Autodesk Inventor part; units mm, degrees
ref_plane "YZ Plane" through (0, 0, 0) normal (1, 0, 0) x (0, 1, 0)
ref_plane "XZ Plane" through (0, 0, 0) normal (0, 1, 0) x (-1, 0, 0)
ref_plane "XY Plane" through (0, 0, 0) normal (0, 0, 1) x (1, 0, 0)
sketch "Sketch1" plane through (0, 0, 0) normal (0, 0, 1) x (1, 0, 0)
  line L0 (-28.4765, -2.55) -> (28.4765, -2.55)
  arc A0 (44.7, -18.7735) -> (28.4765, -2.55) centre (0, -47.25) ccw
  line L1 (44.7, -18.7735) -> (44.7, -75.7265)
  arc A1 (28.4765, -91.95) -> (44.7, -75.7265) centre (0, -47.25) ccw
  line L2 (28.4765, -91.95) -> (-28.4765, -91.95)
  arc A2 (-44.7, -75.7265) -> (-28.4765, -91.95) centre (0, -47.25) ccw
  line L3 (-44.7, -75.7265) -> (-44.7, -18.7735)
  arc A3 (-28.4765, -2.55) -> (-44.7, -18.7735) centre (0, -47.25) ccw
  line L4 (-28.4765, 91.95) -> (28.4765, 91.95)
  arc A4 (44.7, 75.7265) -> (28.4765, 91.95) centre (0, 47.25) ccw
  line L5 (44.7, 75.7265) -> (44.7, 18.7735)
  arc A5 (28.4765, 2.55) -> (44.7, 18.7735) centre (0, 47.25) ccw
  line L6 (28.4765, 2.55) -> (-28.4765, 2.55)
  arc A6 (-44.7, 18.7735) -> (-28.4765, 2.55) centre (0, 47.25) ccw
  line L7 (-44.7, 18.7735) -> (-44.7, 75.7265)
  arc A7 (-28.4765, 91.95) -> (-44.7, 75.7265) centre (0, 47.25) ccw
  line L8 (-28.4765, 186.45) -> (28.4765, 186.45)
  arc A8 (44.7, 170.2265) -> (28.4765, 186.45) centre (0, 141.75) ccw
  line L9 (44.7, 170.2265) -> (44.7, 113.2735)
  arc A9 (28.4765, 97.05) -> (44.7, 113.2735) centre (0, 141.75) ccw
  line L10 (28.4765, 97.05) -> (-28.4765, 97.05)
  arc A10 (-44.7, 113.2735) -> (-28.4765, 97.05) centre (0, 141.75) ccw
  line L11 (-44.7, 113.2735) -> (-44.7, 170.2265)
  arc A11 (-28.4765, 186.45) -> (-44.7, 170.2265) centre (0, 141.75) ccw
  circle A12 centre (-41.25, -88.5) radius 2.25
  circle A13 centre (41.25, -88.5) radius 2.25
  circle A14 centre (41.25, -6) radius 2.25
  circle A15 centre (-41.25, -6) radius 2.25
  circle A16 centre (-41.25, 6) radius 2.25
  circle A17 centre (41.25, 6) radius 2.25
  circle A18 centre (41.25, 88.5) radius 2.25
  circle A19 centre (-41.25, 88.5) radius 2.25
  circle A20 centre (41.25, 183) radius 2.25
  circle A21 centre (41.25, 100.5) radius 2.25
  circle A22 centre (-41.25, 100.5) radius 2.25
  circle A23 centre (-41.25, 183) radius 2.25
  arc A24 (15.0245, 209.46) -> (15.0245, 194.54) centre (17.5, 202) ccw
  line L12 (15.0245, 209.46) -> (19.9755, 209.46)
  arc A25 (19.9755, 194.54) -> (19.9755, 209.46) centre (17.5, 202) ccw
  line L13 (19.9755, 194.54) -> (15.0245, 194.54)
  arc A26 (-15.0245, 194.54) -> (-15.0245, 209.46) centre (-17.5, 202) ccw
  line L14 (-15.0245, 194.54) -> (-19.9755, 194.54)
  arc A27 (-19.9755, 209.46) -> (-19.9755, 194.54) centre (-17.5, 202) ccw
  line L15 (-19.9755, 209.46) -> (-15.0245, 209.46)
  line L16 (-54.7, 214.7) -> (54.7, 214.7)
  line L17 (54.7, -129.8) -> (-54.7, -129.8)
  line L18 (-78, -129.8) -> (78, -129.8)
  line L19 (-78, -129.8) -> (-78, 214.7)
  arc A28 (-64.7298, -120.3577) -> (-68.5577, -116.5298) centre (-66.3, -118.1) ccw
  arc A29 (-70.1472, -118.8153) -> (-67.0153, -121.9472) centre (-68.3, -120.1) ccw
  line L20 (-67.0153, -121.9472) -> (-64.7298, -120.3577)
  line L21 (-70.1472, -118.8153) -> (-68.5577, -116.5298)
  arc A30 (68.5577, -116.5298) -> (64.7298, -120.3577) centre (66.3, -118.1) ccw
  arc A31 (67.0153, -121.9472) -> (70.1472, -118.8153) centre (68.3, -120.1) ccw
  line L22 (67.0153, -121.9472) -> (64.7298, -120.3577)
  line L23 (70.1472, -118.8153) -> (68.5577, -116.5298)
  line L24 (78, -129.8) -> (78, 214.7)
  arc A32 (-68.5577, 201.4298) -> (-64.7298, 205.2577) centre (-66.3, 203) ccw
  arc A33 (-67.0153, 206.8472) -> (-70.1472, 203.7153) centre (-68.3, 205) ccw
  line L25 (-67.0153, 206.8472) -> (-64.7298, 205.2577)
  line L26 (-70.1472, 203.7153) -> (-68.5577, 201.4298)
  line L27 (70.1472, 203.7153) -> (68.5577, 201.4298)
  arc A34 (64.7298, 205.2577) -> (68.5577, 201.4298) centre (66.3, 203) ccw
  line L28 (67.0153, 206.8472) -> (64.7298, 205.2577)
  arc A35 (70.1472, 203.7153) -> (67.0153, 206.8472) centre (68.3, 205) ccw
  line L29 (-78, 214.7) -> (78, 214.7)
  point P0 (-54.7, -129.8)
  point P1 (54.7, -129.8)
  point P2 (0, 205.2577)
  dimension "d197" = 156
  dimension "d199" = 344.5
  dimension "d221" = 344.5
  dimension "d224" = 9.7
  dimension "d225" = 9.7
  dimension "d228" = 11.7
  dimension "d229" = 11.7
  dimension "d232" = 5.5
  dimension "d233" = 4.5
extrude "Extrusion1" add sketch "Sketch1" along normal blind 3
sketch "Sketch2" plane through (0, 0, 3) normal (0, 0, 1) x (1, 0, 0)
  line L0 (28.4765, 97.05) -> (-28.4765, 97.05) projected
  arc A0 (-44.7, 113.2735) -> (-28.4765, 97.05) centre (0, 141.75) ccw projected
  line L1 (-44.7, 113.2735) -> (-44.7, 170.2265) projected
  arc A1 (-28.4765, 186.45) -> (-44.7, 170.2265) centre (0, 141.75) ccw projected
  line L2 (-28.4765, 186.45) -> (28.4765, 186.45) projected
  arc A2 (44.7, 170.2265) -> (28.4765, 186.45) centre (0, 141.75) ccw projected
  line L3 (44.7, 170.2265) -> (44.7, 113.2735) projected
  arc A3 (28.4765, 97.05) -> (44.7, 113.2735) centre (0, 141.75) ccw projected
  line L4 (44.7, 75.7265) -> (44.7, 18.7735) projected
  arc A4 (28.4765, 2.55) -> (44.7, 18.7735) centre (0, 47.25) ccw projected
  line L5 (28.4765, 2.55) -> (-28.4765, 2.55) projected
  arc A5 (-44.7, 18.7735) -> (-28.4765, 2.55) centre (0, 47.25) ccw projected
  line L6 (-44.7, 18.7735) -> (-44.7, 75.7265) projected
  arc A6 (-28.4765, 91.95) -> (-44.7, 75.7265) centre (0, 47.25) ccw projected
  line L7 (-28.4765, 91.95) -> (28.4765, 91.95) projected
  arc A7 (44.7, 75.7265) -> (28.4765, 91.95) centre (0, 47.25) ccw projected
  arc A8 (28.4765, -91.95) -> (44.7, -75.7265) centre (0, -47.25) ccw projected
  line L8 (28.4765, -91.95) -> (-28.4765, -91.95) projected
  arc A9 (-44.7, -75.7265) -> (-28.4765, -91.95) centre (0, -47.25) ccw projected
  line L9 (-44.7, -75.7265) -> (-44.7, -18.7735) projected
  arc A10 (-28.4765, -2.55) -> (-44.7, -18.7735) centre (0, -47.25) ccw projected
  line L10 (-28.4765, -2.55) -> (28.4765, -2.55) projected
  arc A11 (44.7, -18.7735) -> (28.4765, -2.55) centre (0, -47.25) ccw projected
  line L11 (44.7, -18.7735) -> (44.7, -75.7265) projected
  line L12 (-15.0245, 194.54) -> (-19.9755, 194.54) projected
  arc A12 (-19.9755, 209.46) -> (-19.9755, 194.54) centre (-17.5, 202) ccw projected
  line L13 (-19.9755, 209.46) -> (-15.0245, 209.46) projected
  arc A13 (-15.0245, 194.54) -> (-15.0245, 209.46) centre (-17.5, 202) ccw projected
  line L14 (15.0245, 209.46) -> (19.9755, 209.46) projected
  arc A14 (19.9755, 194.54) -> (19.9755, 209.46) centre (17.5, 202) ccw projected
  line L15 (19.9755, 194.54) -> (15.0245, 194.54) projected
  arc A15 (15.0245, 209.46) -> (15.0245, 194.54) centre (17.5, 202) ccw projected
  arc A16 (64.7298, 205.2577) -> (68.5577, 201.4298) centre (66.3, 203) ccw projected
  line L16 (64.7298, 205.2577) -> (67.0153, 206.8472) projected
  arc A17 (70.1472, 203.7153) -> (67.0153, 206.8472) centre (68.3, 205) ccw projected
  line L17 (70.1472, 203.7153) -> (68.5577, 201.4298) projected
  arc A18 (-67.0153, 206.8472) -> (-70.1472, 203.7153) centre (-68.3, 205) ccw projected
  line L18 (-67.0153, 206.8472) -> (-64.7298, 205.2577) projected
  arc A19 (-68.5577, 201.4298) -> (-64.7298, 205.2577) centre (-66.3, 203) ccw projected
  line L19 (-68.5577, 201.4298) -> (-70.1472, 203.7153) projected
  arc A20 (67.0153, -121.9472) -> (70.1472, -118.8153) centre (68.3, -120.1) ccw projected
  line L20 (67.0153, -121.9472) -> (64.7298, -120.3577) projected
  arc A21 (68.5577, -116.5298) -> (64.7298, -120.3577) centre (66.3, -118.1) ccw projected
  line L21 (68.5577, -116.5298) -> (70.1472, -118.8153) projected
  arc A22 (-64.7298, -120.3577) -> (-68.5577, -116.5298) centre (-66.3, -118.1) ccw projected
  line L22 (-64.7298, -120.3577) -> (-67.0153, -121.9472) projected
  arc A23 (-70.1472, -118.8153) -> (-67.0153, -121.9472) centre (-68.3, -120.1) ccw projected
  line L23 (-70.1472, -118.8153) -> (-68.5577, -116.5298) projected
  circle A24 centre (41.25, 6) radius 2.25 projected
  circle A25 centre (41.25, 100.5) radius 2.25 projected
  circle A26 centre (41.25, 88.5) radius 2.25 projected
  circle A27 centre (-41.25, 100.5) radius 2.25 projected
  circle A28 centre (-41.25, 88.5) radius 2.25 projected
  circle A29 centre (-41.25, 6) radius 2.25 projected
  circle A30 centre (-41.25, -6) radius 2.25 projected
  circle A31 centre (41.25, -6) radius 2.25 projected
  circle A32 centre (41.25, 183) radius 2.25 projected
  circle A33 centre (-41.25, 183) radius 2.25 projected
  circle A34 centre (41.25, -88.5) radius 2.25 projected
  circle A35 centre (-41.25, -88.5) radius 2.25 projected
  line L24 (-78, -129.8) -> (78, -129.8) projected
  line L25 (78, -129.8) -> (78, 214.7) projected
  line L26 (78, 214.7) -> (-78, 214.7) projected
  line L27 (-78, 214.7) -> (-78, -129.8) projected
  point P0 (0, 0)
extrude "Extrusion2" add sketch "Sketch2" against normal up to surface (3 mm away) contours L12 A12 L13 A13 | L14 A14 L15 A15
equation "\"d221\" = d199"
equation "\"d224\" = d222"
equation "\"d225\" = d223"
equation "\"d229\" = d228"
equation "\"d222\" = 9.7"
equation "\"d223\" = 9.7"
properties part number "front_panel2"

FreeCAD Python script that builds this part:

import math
import FreeCAD as App
import Part
import Sketcher


def add_polygon(sketch, points):
    """Adds a closed chain of lines whose ends are joined by coincident constraints."""
    first, n = sketch.GeometryCount, len(points)
    for a, b in zip(points, points[1:] + points[:1]):
        sketch.addGeometry(Part.LineSegment(App.Vector(*a, 0), App.Vector(*b, 0)), False)
    for i in range(n):
        sketch.addConstraint(Sketcher.Constraint("Coincident", first + i, 2, first + (i + 1) % n, 1))

doc = App.newDocument("Part")
body = doc.addObject("PartDesign::Body", "Body")

sketch1 = doc.addObject("Sketcher::SketchObject", "Sketch")
body.addObject(sketch1)
sketch1.AttachmentSupport = (doc.XY_Plane, [""])
sketch1.MapMode = "FlatFace"
add_polygon(sketch1, [(78, 214.7), (-78, 214.7), (-78, -129.8), (78, -129.8)])
sketch1.addGeometry(Part.ArcOfCircle(Part.Circle(App.Vector(-66.3, -118.1, 0), App.Vector(0, 0, 1), 2.8), math.radians(-55), math.radians(145)), False)
sketch1.addGeometry(Part.LineSegment(App.Vector(-64.7, -120.4, 0), App.Vector(-67, -121.9, 0)), False)
sketch1.addGeometry(Part.ArcOfCircle(Part.Circle(App.Vector(-68.3, -120.1, 0), App.Vector(0, 0, 1), 2.3), math.radians(145), math.radians(305)), False)
sketch1.addGeometry(Part.LineSegment(App.Vector(-70.1, -118.8, 0), App.Vector(-68.6, -116.5, 0)), False)
sketch1.addGeometry(Part.Circle(App.Vector(-41.2, -88.5, 0), App.Vector(0, 0, 1), 2.2), False)
sketch1.addGeometry(Part.Circle(App.Vector(-41.2, -6, 0), App.Vector(0, 0, 1), 2.2), False)
sketch1.addGeometry(Part.Circle(App.Vector(-41.2, 6, 0), App.Vector(0, 0, 1), 2.2), False)
sketch1.addGeometry(Part.ArcOfCircle(Part.Circle(App.Vector(0, -47.2, 0), App.Vector(0, 0, 1), 53), math.radians(122), math.radians(148)), False)
sketch1.addGeometry(Part.LineSegment(App.Vector(-28.5, -2.5, 0), App.Vector(28.5, -2.5, 0)), False)
sketch1.addGeometry(Part.ArcOfCircle(Part.Circle(App.Vector(0, -47.2, 0), App.Vector(0, 0, 1), 53), math.radians(32), math.radians(58)), False)
sketch1.addGeometry(Part.LineSegment(App.Vector(44.7, -18.8, 0), App.Vector(44.7, -75.7, 0)), False)
sketch1.addGeometry(Part.ArcOfCircle(Part.Circle(App.Vector(0, -47.2, 0), App.Vector(0, 0, 1), 53), math.radians(-58), math.radians(-32)), False)
sketch1.addGeometry(Part.LineSegment(App.Vector(28.5, -92, 0), App.Vector(-28.5, -92, 0)), False)
sketch1.addGeometry(Part.ArcOfCircle(Part.Circle(App.Vector(0, -47.2, 0), App.Vector(0, 0, 1), 53), math.radians(-148), math.radians(-122)), False)
sketch1.addGeometry(Part.LineSegment(App.Vector(-44.7, -75.7, 0), App.Vector(-44.7, -18.8, 0)), False)
sketch1.addGeometry(Part.Circle(App.Vector(41.2, -88.5, 0), App.Vector(0, 0, 1), 2.2), False)
sketch1.addGeometry(Part.ArcOfCircle(Part.Circle(App.Vector(66.3, -118.1, 0), App.Vector(0, 0, 1), 2.8), math.radians(35), math.radians(235)), False)
sketch1.addGeometry(Part.LineSegment(App.Vector(68.6, -116.5, 0), App.Vector(70.1, -118.8, 0)), False)
sketch1.addGeometry(Part.ArcOfCircle(Part.Circle(App.Vector(68.3, -120.1, 0), App.Vector(0, 0, 1), 2.3), math.radians(-125), math.radians(35)), False)
sketch1.addGeometry(Part.LineSegment(App.Vector(67, -121.9, 0), App.Vector(64.7, -120.4, 0)), False)
sketch1.addGeometry(Part.Circle(App.Vector(41.2, -6, 0), App.Vector(0, 0, 1), 2.2), False)
sketch1.addGeometry(Part.Circle(App.Vector(41.2, 6, 0), App.Vector(0, 0, 1), 2.2), False)
sketch1.addGeometry(Part.Circle(App.Vector(-41.2, 88.5, 0), App.Vector(0, 0, 1), 2.2), False)
sketch1.addGeometry(Part.Circle(App.Vector(-41.2, 100.5, 0), App.Vector(0, 0, 1), 2.2), False)
sketch1.addGeometry(Part.ArcOfCircle(Part.Circle(App.Vector(-66.3, 203, 0), App.Vector(0, 0, 1), 2.8), math.radians(-145), math.radians(55)), False)
sketch1.addGeometry(Part.LineSegment(App.Vector(-68.6, 201.4, 0), App.Vector(-70.1, 203.7, 0)), False)
sketch1.addGeometry(Part.ArcOfCircle(Part.Circle(App.Vector(-68.3, 205, 0), App.Vector(0, 0, 1), 2.3), math.radians(55), math.radians(215)), False)
sketch1.addGeometry(Part.LineSegment(App.Vector(-67, 206.8, 0), App.Vector(-64.7, 205.3, 0)), False)
sketch1.addGeometry(Part.Circle(App.Vector(-41.2, 183, 0), App.Vector(0, 0, 1), 2.2), False)
sketch1.addGeometry(Part.ArcOfCircle(Part.Circle(App.Vector(-17.5, 202, 0), App.Vector(0, 0, 1), 7.9), math.radians(-72), math.radians(72)), False)
sketch1.addGeometry(Part.LineSegment(App.Vector(-15, 194.5, 0), App.Vector(-20, 194.5, 0)), False)
sketch1.addGeometry(Part.ArcOfCircle(Part.Circle(App.Vector(-17.5, 202, 0), App.Vector(0, 0, 1), 7.9), math.radians(108), math.radians(252)), False)
sketch1.addGeometry(Part.LineSegment(App.Vector(-20, 209.5, 0), App.Vector(-15, 209.5, 0)), False)
sketch1.addGeometry(Part.ArcOfCircle(Part.Circle(App.Vector(0, 47.2, 0), App.Vector(0, 0, 1), 53), math.radians(122), math.radians(148)), False)
sketch1.addGeometry(Part.LineSegment(App.Vector(-28.5, 92, 0), App.Vector(28.5, 92, 0)), False)
sketch1.addGeometry(Part.ArcOfCircle(Part.Circle(App.Vector(0, 47.2, 0), App.Vector(0, 0, 1), 53), math.radians(32), math.radians(58)), False)
sketch1.addGeometry(Part.LineSegment(App.Vector(44.7, 75.7, 0), App.Vector(44.7, 18.8, 0)), False)
sketch1.addGeometry(Part.ArcOfCircle(Part.Circle(App.Vector(0, 47.2, 0), App.Vector(0, 0, 1), 53), math.radians(-58), math.radians(-32)), False)
sketch1.addGeometry(Part.LineSegment(App.Vector(28.5, 2.5, 0), App.Vector(-28.5, 2.5, 0)), False)
sketch1.addGeometry(Part.ArcOfCircle(Part.Circle(App.Vector(0, 47.2, 0), App.Vector(0, 0, 1), 53), math.radians(-148), math.radians(-122)), False)
sketch1.addGeometry(Part.LineSegment(App.Vector(-44.7, 18.8, 0), App.Vector(-44.7, 75.7, 0)), False)
sketch1.addGeometry(Part.Circle(App.Vector(41.2, 88.5, 0), App.Vector(0, 0, 1), 2.2), False)
sketch1.addGeometry(Part.Circle(App.Vector(41.2, 100.5, 0), App.Vector(0, 0, 1), 2.2), False)
sketch1.addGeometry(Part.ArcOfCircle(Part.Circle(App.Vector(0, 141.8, 0), App.Vector(0, 0, 1), 53), math.radians(122), math.radians(148)), False)
sketch1.addGeometry(Part.LineSegment(App.Vector(-28.5, 186.4, 0), App.Vector(28.5, 186.4, 0)), False)
sketch1.addGeometry(Part.ArcOfCircle(Part.Circle(App.Vector(0, 141.8, 0), App.Vector(0, 0, 1), 53), math.radians(32), math.radians(58)), False)
sketch1.addGeometry(Part.LineSegment(App.Vector(44.7, 170.2, 0), App.Vector(44.7, 113.3, 0)), False)
sketch1.addGeometry(Part.ArcOfCircle(Part.Circle(App.Vector(0, 141.8, 0), App.Vector(0, 0, 1), 53), math.radians(-58), math.radians(-32)), False)
sketch1.addGeometry(Part.LineSegment(App.Vector(28.5, 97, 0), App.Vector(-28.5, 97, 0)), False)
sketch1.addGeometry(Part.ArcOfCircle(Part.Circle(App.Vector(0, 141.8, 0), App.Vector(0, 0, 1), 53), math.radians(-148), math.radians(-122)), False)
sketch1.addGeometry(Part.LineSegment(App.Vector(-44.7, 113.3, 0), App.Vector(-44.7, 170.2, 0)), False)
sketch1.addGeometry(Part.ArcOfCircle(Part.Circle(App.Vector(17.5, 202, 0), App.Vector(0, 0, 1), 7.9), math.radians(108), math.radians(252)), False)
sketch1.addGeometry(Part.LineSegment(App.Vector(15, 209.5, 0), App.Vector(20, 209.5, 0)), False)
sketch1.addGeometry(Part.ArcOfCircle(Part.Circle(App.Vector(17.5, 202, 0), App.Vector(0, 0, 1), 7.9), math.radians(-72), math.radians(72)), False)
sketch1.addGeometry(Part.LineSegment(App.Vector(20, 194.5, 0), App.Vector(15, 194.5, 0)), False)
sketch1.addGeometry(Part.Circle(App.Vector(41.2, 183, 0), App.Vector(0, 0, 1), 2.2), False)
sketch1.addGeometry(Part.ArcOfCircle(Part.Circle(App.Vector(68.3, 205, 0), App.Vector(0, 0, 1), 2.3), math.radians(-35), math.radians(125)), False)
sketch1.addGeometry(Part.LineSegment(App.Vector(70.1, 203.7, 0), App.Vector(68.6, 201.4, 0)), False)
sketch1.addGeometry(Part.ArcOfCircle(Part.Circle(App.Vector(66.3, 203, 0), App.Vector(0, 0, 1), 2.8), math.radians(125), math.radians(325)), False)
sketch1.addGeometry(Part.LineSegment(App.Vector(64.7, 205.3, 0), App.Vector(67, 206.8, 0)), False)
sketch1.addConstraint([
    Sketcher.Constraint("Tangent", 4, 1, 5, 1),
    Sketcher.Constraint("Tangent", 5, 2, 6, 2),
    Sketcher.Constraint("Tangent", 6, 1, 7, 1),
    Sketcher.Constraint("Tangent", 7, 2, 4, 2),
    Sketcher.Constraint("Coincident", 11, 1, 12, 1),
    Sketcher.Constraint("Coincident", 12, 2, 13, 2),
    Sketcher.Constraint("Coincident", 13, 1, 14, 1),
    Sketcher.Constraint("Coincident", 14, 2, 15, 2),
    Sketcher.Constraint("Coincident", 15, 1, 16, 1),
    Sketcher.Constraint("Coincident", 16, 2, 17, 2),
    Sketcher.Constraint("Coincident", 17, 1, 18, 1),
    Sketcher.Constraint("Coincident", 18, 2, 11, 2),
    Sketcher.Constraint("Tangent", 20, 1, 21, 1),
    Sketcher.Constraint("Tangent", 21, 2, 22, 2),
    Sketcher.Constraint("Tangent", 22, 1, 23, 1),
    Sketcher.Constraint("Tangent", 23, 2, 20, 2),
    Sketcher.Constraint("Tangent", 28, 1, 29, 1),
    Sketcher.Constraint("Tangent", 29, 2, 30, 2),
    Sketcher.Constraint("Tangent", 30, 1, 31, 1),
    Sketcher.Constraint("Tangent", 31, 2, 28, 2),
    Sketcher.Constraint("Coincident", 33, 1, 34, 1),
    Sketcher.Constraint("Coincident", 34, 2, 35, 2),
    Sketcher.Constraint("Coincident", 35, 1, 36, 1),
    Sketcher.Constraint("Coincident", 36, 2, 33, 2),
    Sketcher.Constraint("Coincident", 37, 1, 38, 1),
    Sketcher.Constraint("Coincident", 38, 2, 39, 2),
    Sketcher.Constraint("Coincident", 39, 1, 40, 1),
    Sketcher.Constraint("Coincident", 40, 2, 41, 2),
    Sketcher.Constraint("Coincident", 41, 1, 42, 1),
    Sketcher.Constraint("Coincident", 42, 2, 43, 2),
    Sketcher.Constraint("Coincident", 43, 1, 44, 1),
    Sketcher.Constraint("Coincident", 44, 2, 37, 2),
    Sketcher.Constraint("Coincident", 47, 1, 48, 1),
    Sketcher.Constraint("Coincident", 48, 2, 49, 2),
    Sketcher.Constraint("Coincident", 49, 1, 50, 1),
    Sketcher.Constraint("Coincident", 50, 2, 51, 2),
    Sketcher.Constraint("Coincident", 51, 1, 52, 1),
    Sketcher.Constraint("Coincident", 52, 2, 53, 2),
    Sketcher.Constraint("Coincident", 53, 1, 54, 1),
    Sketcher.Constraint("Coincident", 54, 2, 47, 2),
    Sketcher.Constraint("Coincident", 55, 1, 56, 1),
    Sketcher.Constraint("Coincident", 56, 2, 57, 2),
    Sketcher.Constraint("Coincident", 57, 1, 58, 1),
    Sketcher.Constraint("Coincident", 58, 2, 55, 2),
    Sketcher.Constraint("Tangent", 60, 1, 61, 1),
    Sketcher.Constraint("Tangent", 61, 2, 62, 2),
    Sketcher.Constraint("Tangent", 62, 1, 63, 1),
    Sketcher.Constraint("Tangent", 63, 2, 60, 2),
    Sketcher.Constraint("Horizontal", 0),
    Sketcher.Constraint("Vertical", 1),
    Sketcher.Constraint("Horizontal", 2),
    Sketcher.Constraint("Vertical", 3),
    Sketcher.Constraint("Horizontal", 12),
    Sketcher.Constraint("Vertical", 14),
    Sketcher.Constraint("Horizontal", 16),
    Sketcher.Constraint("Vertical", 18),
    Sketcher.Constraint("Horizontal", 34),
    Sketcher.Constraint("Horizontal", 36),
    Sketcher.Constraint("Horizontal", 38),
    Sketcher.Constraint("Vertical", 40),
    Sketcher.Constraint("Horizontal", 42),
    Sketcher.Constraint("Vertical", 44),
    Sketcher.Constraint("Horizontal", 48),
    Sketcher.Constraint("Vertical", 50),
    Sketcher.Constraint("Horizontal", 52),
    Sketcher.Constraint("Vertical", 54),
    Sketcher.Constraint("Horizontal", 56),
    Sketcher.Constraint("Horizontal", 58),
    Sketcher.Constraint("Coincident", 13, 3, 11, 3),
    Sketcher.Constraint("Coincident", 15, 3, 11, 3),
    Sketcher.Constraint("Coincident", 17, 3, 11, 3),
    Sketcher.Constraint("Coincident", 35, 3, 33, 3),
    Sketcher.Constraint("Coincident", 39, 3, 37, 3),
    Sketcher.Constraint("Coincident", 41, 3, 37, 3),
    Sketcher.Constraint("Coincident", 43, 3, 37, 3),
    Sketcher.Constraint("Coincident", 49, 3, 47, 3),
    Sketcher.Constraint("Coincident", 51, 3, 47, 3),
    Sketcher.Constraint("Coincident", 53, 3, 47, 3),
    Sketcher.Constraint("Coincident", 57, 3, 55, 3),
    Sketcher.Constraint("Equal", 6, 8),
    Sketcher.Constraint("Equal", 8, 9),
    Sketcher.Constraint("Equal", 9, 10),
    Sketcher.Constraint("Equal", 11, 13),
    Sketcher.Constraint("Equal", 13, 15),
    Sketcher.Constraint("Equal", 15, 17),
    Sketcher.Constraint("Equal", 10, 19),
    Sketcher.Constraint("Equal", 4, 20),
    Sketcher.Constraint("Equal", 19, 22),
    Sketcher.Constraint("Equal", 22, 24),
    Sketcher.Constraint("Equal", 24, 25),
    Sketcher.Constraint("Equal", 25, 26),
    Sketcher.Constraint("Equal", 26, 27),
    Sketcher.Constraint("Equal", 20, 28),
    Sketcher.Constraint("Equal", 27, 30),
    Sketcher.Constraint("Equal", 30, 32),
    Sketcher.Constraint("Equal", 33, 35),
    Sketcher.Constraint("Equal", 17, 37),
    Sketcher.Constraint("Equal", 37, 39),
    Sketcher.Constraint("Equal", 39, 41),
    Sketcher.Constraint("Equal", 41, 43),
    Sketcher.Constraint("Equal", 32, 45),
    Sketcher.Constraint("Equal", 45, 46),
    Sketcher.Constraint("Equal", 43, 47),
    Sketcher.Constraint("Equal", 47, 49),
    Sketcher.Constraint("Equal", 49, 51),
    Sketcher.Constraint("Equal", 51, 53),
    Sketcher.Constraint("Equal", 35, 55),
    Sketcher.Constraint("Equal", 55, 57),
    Sketcher.Constraint("Equal", 46, 59),
    Sketcher.Constraint("Equal", 59, 60),
    Sketcher.Constraint("Equal", 28, 62),
    Sketcher.Constraint("Symmetric", 10, 3, 24, 3, -1, 1),
    Sketcher.Constraint("Symmetric", 9, 3, 25, 3, -1, 1),
    Sketcher.Constraint("Symmetric", 19, 3, 26, 3, -1, 1),
    Sketcher.Constraint("Symmetric", 11, 3, 37, 3, -1, 1),
    Sketcher.Constraint("Symmetric", 8, 3, 45, 3, -1, 1),
    Sketcher.Constraint("Symmetric", 8, 3, 19, 3, -2),
    Sketcher.Constraint("Symmetric", 4, 3, 20, 3, -2),
    Sketcher.Constraint("Symmetric", 6, 3, 22, 3, -2),
    Sketcher.Constraint("Symmetric", 9, 3, 24, 3, -2),
    Sketcher.Constraint("Symmetric", 27, 3, 46, 3, -2),
    Sketcher.Constraint("Symmetric", 33, 3, 55, 3, -2),
    Sketcher.Constraint("Symmetric", 32, 3, 59, 3, -2),
    Sketcher.Constraint("Symmetric", 30, 3, 60, 3, -2),
    Sketcher.Constraint("Symmetric", 28, 3, 62, 3, -2),
    Sketcher.Constraint("Symmetric", 14, 2, 17, 1, -2),
    Sketcher.Constraint("Symmetric", 50, 2, 53, 1, -2),
    Sketcher.Constraint("Perpendicular", 5, 21),
    Sketcher.Constraint("Parallel", 21, 29),
    Sketcher.Constraint("Parallel", 23, 31),
    Sketcher.Constraint("Horizontal", 40, 2, 43, 1),
    Sketcher.Constraint("Horizontal", 36, 2, 55, 1),
    Sketcher.Constraint("Horizontal", 34, 2, 57, 1),
    Sketcher.Constraint("Vertical", 8, 3, 9, 3),
    Sketcher.Constraint("Vertical", 26, 3, 27, 3),
    Sketcher.Constraint("Vertical", 4, 3, 28, 3),
    Sketcher.Constraint("Vertical", 27, 3, 32, 3),
    Sketcher.Constraint("Vertical", 12, 2, 15, 1),
    Sketcher.Constraint("Vertical", 34, 2, 35, 1),
    Sketcher.Constraint("Vertical", 16, 2, 37, 1),
    Sketcher.Constraint("Vertical", 14, 2, 39, 1),
    Sketcher.Constraint("Vertical", 38, 2, 41, 1),
    Sketcher.Constraint("Vertical", 42, 2, 47, 1),
    Sketcher.Constraint("Vertical", 40, 2, 49, 1),
    Sketcher.Constraint("Vertical", 48, 2, 51, 1),
    Sketcher.Constraint("Equal", 52, 14),
    Sketcher.Constraint("Diameter", 8, 4.5),
    Sketcher.Constraint("DistanceX", 0, 2, 0, 1, 156.0),
    Sketcher.Constraint("Radius", 4, 2.75),
    Sketcher.Constraint("DistanceY", 1, 2, 1, 1, 344.5),
    Sketcher.Constraint("Radius", 11, 53.0),
    Sketcher.Constraint("Radius", 33, 7.86),
    Sketcher.Constraint("DistanceY", 9, 3, -1, 1, 6.0),
    Sketcher.Constraint("DistanceY", -1, 1, 28, 3, 203.0),
    Sketcher.Constraint("DistanceY", -1, 1, 30, 3, 205.0),
    Sketcher.Constraint("DistanceY", -1, 1, 32, 3, 183.0),
    Sketcher.Constraint("DistanceY", -1, 1, 33, 3, 202.0),
    Sketcher.Constraint("DistanceX", 0, 2, -1, 1, 78.0),
    Sketcher.Constraint("DistanceX", 4, 3, -1, 1, 66.3),
    Sketcher.Constraint("DistanceY", 4, 3, -1, 1, 118.1),
    Sketcher.Constraint("DistanceY", 8, 3, -1, 1, 88.5),
    Sketcher.Constraint("DistanceY", -1, 1, 27, 3, 100.5),
    Sketcher.Constraint("DistanceX", 33, 3, -1, 1, 17.5),
    Sketcher.Constraint("DistanceY", -1, 1, 0, 2, 214.7),
    Sketcher.Constraint("DistanceX", -1, 1, 13, 1, 44.7),
    Sketcher.Constraint("DistanceX", 34, 2, 34, 1, 4.951),
    Sketcher.Constraint("DistanceX", 8, 3, -1, 1, 41.25),
    Sketcher.Constraint("DistanceY", 11, 3, -1, 1, 47.25),
    Sketcher.Constraint("DistanceY", -1, 1, 47, 3, 141.75),
])
pad1 = doc.addObject("PartDesign::Pad", "Pad")
body.addObject(pad1)
pad1.Profile = sketch1
pad1.Length = 3

sketch2 = doc.addObject("Sketcher::SketchObject", "Sketch001")
body.addObject(sketch2)
sketch2.AttachmentSupport = (doc.XY_Plane, [""])
sketch2.MapMode = "FlatFace"
sketch2.AttachmentOffset = App.Placement(App.Vector(0, 0, 3), App.Rotation())
sketch2.addGeometry([
    Part.LineSegment(App.Vector(-20, 194.5, 0), App.Vector(-15, 194.5, 0)),
    Part.ArcOfCircle(Part.Circle(App.Vector(-17.5, 202, 0), App.Vector(0, 0, 1), 7.9), math.radians(-72), math.radians(72)),
    Part.LineSegment(App.Vector(-15, 209.5, 0), App.Vector(-20, 209.5, 0)),
    Part.ArcOfCircle(Part.Circle(App.Vector(-17.5, 202, 0), App.Vector(0, 0, 1), 7.9), math.radians(108), math.radians(252)),
    Part.LineSegment(App.Vector(20, 209.5, 0), App.Vector(15, 209.5, 0)),
    Part.ArcOfCircle(Part.Circle(App.Vector(17.5, 202, 0), App.Vector(0, 0, 1), 7.9), math.radians(108), math.radians(252)),
    Part.LineSegment(App.Vector(15, 194.5, 0), App.Vector(20, 194.5, 0)),
    Part.ArcOfCircle(Part.Circle(App.Vector(17.5, 202, 0), App.Vector(0, 0, 1), 7.9), math.radians(-72), math.radians(72)),
], False)
sketch2.addConstraint([
    Sketcher.Constraint("Coincident", 0, 2, 1, 1),
    Sketcher.Constraint("Coincident", 1, 2, 2, 1),
    Sketcher.Constraint("Coincident", 2, 2, 3, 1),
    Sketcher.Constraint("Coincident", 3, 2, 0, 1),
    Sketcher.Constraint("Coincident", 4, 2, 5, 1),
    Sketcher.Constraint("Coincident", 5, 2, 6, 1),
    Sketcher.Constraint("Coincident", 6, 2, 7, 1),
    Sketcher.Constraint("Coincident", 7, 2, 4, 1),
    Sketcher.Constraint("Horizontal", 0),
    Sketcher.Constraint("Horizontal", 2),
    Sketcher.Constraint("Horizontal", 4),
    Sketcher.Constraint("Horizontal", 6),
    Sketcher.Constraint("Coincident", 3, 3, 1, 3),
    Sketcher.Constraint("Coincident", 7, 3, 5, 3),
    Sketcher.Constraint("Equal", 1, 3),
    Sketcher.Constraint("Equal", 3, 5),
    Sketcher.Constraint("Equal", 5, 7),
    Sketcher.Constraint("Symmetric", 1, 3, 5, 3, -2),
    Sketcher.Constraint("Horizontal", 2, 2, 4, 2),
    Sketcher.Constraint("Horizontal", 3, 2, 5, 2),
    Sketcher.Constraint("Vertical", 0, 2, 1, 2),
    Sketcher.Constraint("Radius", 1, 7.86),
    Sketcher.Constraint("DistanceY", -1, 1, 1, 3, 202.0),
    Sketcher.Constraint("DistanceX", 1, 3, 5, 3, 35.0),
    Sketcher.Constraint("DistanceX", 0, 1, 0, 2, 4.951),
])
pad2 = doc.addObject("PartDesign::Pad", "Pad001")
body.addObject(pad2)
pad2.Profile = sketch2
pad2.Length = 3
pad2.Reversed = True

doc.recompute()
